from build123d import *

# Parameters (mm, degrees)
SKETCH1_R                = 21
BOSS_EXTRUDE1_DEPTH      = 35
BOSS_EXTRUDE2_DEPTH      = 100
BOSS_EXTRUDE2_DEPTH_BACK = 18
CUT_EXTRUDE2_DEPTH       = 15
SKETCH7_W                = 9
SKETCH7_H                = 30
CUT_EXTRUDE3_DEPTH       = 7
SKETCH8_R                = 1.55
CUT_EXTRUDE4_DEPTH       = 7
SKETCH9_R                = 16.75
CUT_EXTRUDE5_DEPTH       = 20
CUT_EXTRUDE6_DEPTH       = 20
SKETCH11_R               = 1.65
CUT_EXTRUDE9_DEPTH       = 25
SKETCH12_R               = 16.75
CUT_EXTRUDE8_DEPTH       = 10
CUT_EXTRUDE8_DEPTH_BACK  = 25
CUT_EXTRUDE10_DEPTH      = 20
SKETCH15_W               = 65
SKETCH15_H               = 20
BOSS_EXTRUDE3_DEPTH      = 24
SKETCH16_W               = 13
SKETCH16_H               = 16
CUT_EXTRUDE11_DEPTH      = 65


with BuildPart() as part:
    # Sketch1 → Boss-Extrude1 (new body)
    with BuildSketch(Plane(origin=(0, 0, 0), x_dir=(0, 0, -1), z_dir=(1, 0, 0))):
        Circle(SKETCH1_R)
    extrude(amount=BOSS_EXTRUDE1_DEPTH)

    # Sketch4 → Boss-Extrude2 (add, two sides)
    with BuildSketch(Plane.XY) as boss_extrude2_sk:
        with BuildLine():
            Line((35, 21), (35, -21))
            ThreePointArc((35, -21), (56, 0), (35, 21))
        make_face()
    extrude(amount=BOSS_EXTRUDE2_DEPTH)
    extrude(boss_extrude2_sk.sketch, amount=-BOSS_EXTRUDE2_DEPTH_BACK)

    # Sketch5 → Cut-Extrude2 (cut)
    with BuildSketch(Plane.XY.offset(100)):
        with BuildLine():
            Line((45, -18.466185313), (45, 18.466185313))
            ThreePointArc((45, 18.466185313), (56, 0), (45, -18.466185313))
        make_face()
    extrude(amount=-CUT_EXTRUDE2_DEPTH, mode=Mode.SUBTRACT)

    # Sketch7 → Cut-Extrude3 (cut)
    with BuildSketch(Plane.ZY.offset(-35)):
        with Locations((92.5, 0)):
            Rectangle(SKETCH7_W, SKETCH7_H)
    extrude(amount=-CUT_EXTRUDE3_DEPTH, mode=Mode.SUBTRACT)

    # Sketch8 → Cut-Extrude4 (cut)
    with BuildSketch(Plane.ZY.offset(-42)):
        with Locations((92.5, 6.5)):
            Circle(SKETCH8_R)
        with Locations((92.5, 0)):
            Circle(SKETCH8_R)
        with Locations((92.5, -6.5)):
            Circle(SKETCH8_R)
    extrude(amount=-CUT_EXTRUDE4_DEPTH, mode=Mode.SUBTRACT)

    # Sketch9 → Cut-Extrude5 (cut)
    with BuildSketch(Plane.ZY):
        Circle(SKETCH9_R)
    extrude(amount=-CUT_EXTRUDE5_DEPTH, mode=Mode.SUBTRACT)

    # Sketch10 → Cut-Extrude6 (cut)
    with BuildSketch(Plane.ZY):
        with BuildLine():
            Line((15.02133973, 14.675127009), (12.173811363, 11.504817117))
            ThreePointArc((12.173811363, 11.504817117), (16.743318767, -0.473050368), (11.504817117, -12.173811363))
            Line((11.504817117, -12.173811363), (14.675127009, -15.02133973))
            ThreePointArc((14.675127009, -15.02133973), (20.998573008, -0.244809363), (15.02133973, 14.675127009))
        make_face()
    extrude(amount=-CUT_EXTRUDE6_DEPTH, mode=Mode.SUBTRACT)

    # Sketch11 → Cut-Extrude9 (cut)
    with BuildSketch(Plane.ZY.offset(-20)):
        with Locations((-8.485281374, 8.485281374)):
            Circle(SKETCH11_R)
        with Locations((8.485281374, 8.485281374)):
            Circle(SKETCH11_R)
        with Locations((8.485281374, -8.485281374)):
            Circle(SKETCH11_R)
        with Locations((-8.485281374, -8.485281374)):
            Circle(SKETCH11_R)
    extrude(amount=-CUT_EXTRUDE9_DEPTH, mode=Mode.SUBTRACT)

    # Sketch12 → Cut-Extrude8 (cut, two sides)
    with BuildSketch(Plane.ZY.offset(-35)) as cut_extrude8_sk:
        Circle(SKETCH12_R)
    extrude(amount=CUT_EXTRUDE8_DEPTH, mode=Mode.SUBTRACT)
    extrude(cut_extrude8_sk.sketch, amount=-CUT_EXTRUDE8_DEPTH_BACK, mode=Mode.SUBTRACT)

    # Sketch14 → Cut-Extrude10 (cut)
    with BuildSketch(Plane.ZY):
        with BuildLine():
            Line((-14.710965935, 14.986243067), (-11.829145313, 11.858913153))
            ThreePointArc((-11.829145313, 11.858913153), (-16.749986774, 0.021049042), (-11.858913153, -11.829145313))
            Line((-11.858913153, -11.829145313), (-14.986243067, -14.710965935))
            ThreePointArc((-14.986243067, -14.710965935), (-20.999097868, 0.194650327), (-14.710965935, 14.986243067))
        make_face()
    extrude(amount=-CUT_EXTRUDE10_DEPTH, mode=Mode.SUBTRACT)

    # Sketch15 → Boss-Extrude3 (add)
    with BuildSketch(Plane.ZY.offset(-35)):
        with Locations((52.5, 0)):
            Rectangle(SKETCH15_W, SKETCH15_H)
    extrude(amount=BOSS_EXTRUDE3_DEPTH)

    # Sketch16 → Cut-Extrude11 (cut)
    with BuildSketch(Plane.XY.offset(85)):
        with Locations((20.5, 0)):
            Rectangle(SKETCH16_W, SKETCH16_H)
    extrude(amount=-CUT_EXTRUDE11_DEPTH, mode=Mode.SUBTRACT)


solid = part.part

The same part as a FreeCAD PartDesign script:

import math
import FreeCAD as App
import Part
import Sketcher
Q = App.Units.Quantity


def add_polygon(sketch, points):
    """Adds a closed chain of lines whose ends are joined by coincident constraints."""
    first, n = sketch.GeometryCount, len(points)
    for a, b in zip(points, points[1:] + points[:1]):
        sketch.addGeometry(Part.LineSegment(App.Vector(*a, 0), App.Vector(*b, 0)), False)
    for i in range(n):
        sketch.addConstraint(Sketcher.Constraint("Coincident", first + i, 2, first + (i + 1) % n, 1))

doc = App.newDocument("Part")
body = doc.addObject("PartDesign::Body", "Body")

sketch1 = body.newObject("Sketcher::SketchObject", "Sketch")
sketch1.AttachmentSupport = (doc.getObject("YZ_Plane"), [""])
sketch1.MapMode = "FlatFace"
sketch1.addGeometry(Part.Circle(App.Vector(0, 0, 0), App.Vector(0, 0, 1), 21), False)
sketch1.addConstraint([
    Sketcher.Constraint("Coincident", 0, 3, -1, 1),
    Sketcher.Constraint("Diameter", 0, Q("42 mm")),
])
pad1 = body.newObject("PartDesign::Pad", "Pad")
pad1.Profile = sketch1
pad1.Length = 35

sketch2 = body.newObject("Sketcher::SketchObject", "Sketch001")
sketch2.AttachmentSupport = (doc.getObject("XY_Plane"), [""])
sketch2.MapMode = "FlatFace"
sketch2.addGeometry([
    Part.LineSegment(App.Vector(35, 21, 0), App.Vector(35, -21, 0)),
    Part.ArcOfCircle(Part.Circle(App.Vector(35, 0, 0), App.Vector(0, 0, 1), 21), math.radians(-90), math.radians(90)),
], False)
sketch2.addConstraint([
    Sketcher.Constraint("Coincident", 0, 1, 1, 2),
    Sketcher.Constraint("Coincident", 1, 1, 0, 2),
    Sketcher.Constraint("Vertical", 0),
    Sketcher.Constraint("PointOnObject", 1, 3, -1),
    Sketcher.Constraint("Vertical", 1, 3, 0, 1),
    Sketcher.Constraint("Radius", 1, Q("21 mm")),
    Sketcher.Constraint("DistanceX", -1, 1, 1, 3, Q("35 mm")),
])
pad2 = body.newObject("PartDesign::Pad", "Pad001")
pad2.Profile = sketch2
pad2.Type = "TwoLengths"
pad2.Length = 100
pad2.Length2 = 18

sketch3 = body.newObject("Sketcher::SketchObject", "Sketch002")
sketch3.AttachmentSupport = (doc.getObject("XY_Plane"), [""])
sketch3.MapMode = "FlatFace"
sketch3.AttachmentOffset = App.Placement(App.Vector(0, 0, 100), App.Rotation())
sketch3.addGeometry([
    Part.LineSegment(App.Vector(45, 18, 0), App.Vector(45, -18, 0)),
    Part.ArcOfCircle(Part.Circle(App.Vector(35, 0, 0), App.Vector(0, 0, 1), 21), math.radians(-62), math.radians(62)),
], False)
sketch3.addConstraint([
    Sketcher.Constraint("Coincident", 0, 1, 1, 2),
    Sketcher.Constraint("Coincident", 1, 1, 0, 2),
    Sketcher.Constraint("Vertical", 0),
    Sketcher.Constraint("PointOnObject", 1, 3, -1),
    Sketcher.Constraint("Radius", 1, Q("21 mm")),
    Sketcher.Constraint("DistanceX", -1, 1, 1, 3, Q("35 mm")),
    Sketcher.Constraint("DistanceX", -1, 1, 0, 1, Q("45 mm")),
])
pocket1 = body.newObject("PartDesign::Pocket", "Pocket")
pocket1.Profile = sketch3
pocket1.Length = 15

sketch4 = body.newObject("Sketcher::SketchObject", "Sketch003")
sketch4.AttachmentSupport = (doc.getObject("YZ_Plane"), [""])
sketch4.MapMode = "FlatFace"
sketch4.AttachmentOffset = App.Placement(App.Vector(0, 0, 35), App.Rotation())
add_polygon(sketch4, [(15, 88), (-15, 88), (-15, 97), (15, 97)])
sketch4.addConstraint([
    Sketcher.Constraint("Horizontal", 0),
    Sketcher.Constraint("Vertical", 1),
    Sketcher.Constraint("Horizontal", 2),
    Sketcher.Constraint("Vertical", 3),
    Sketcher.Constraint("DistanceX", 0, 2, 0, 1, Q("30 mm")),
    Sketcher.Constraint("DistanceY", 1, 1, 1, 2, Q("9 mm")),
    Sketcher.Constraint("DistanceX", 0, 2, -1, 1, Q("15 mm")),
    Sketcher.Constraint("DistanceY", -1, 1, 0, 2, Q("88 mm")),
])
pocket2 = body.newObject("PartDesign::Pocket", "Pocket001")
pocket2.Profile = sketch4
pocket2.Length = 7
pocket2.Reversed = True

sketch5 = body.newObject("Sketcher::SketchObject", "Sketch004")
sketch5.AttachmentSupport = (doc.getObject("YZ_Plane"), [""])
sketch5.MapMode = "FlatFace"
sketch5.AttachmentOffset = App.Placement(App.Vector(0, 0, 42), App.Rotation())
sketch5.addGeometry([
    Part.Circle(App.Vector(6.5, 92.5, 0), App.Vector(0, 0, 1), 1.6),
    Part.Circle(App.Vector(0, 92.5, 0), App.Vector(0, 0, 1), 1.6),
    Part.Circle(App.Vector(-6.5, 92.5, 0), App.Vector(0, 0, 1), 1.6),
], False)
sketch5.addConstraint([
    Sketcher.Constraint("Equal", 0, 1),
    Sketcher.Constraint("Equal", 1, 2),
    Sketcher.Constraint("Symmetric", 0, 3, 2, 3, -2),
    Sketcher.Constraint("PointOnObject", 1, 3, -2),
    Sketcher.Constraint("Horizontal", 0, 3, 1, 3),
    Sketcher.Constraint("Diameter", 0, Q("3.1 mm")),
    Sketcher.Constraint("DistanceX", 2, 3, 0, 3, Q("13 mm")),
    Sketcher.Constraint("DistanceY", -1, 1, 0, 3, Q("92.5 mm")),
])
pocket3 = body.newObject("PartDesign::Pocket", "Pocket002")
pocket3.Profile = sketch5
pocket3.Length = 7
pocket3.Reversed = True

sketch6 = body.newObject("Sketcher::SketchObject", "Sketch005")
sketch6.AttachmentSupport = (doc.getObject("YZ_Plane"), [""])
sketch6.MapMode = "FlatFace"
sketch6.addGeometry(Part.Circle(App.Vector(0, 0, 0), App.Vector(0, 0, 1), 17), False)
sketch6.addConstraint([
    Sketcher.Constraint("Coincident", 0, 3, -1, 1),
    Sketcher.Constraint("Diameter", 0, Q("33.5 mm")),
])
pocket4 = body.newObject("PartDesign::Pocket", "Pocket003")
pocket4.Profile = sketch6
pocket4.Length = 20
pocket4.Reversed = True

sketch7 = body.newObject("Sketcher::SketchObject", "Sketch006")
sketch7.AttachmentSupport = (doc.getObject("YZ_Plane"), [""])
sketch7.MapMode = "FlatFace"
sketch7.addGeometry([
    Part.LineSegment(App.Vector(14.7, 15, 0), App.Vector(11.5, 12.2, 0)),
    Part.ArcOfCircle(Part.Circle(App.Vector(0, 0, 0), App.Vector(0, 0, 1), 16.8), math.radians(47), math.radians(137)),
    Part.LineSegment(App.Vector(-12.2, 11.5, 0), App.Vector(-15, 14.7, 0)),
    Part.ArcOfCircle(Part.Circle(App.Vector(0, 0, 0), App.Vector(0, 0, 1), 21), math.radians(46), math.radians(136)),
], False)
sketch7.addConstraint([
    Sketcher.Constraint("Coincident", 0, 2, 1, 1),
    Sketcher.Constraint("Coincident", 1, 2, 2, 1),
    Sketcher.Constraint("Coincident", 2, 2, 3, 2),
    Sketcher.Constraint("Coincident", 3, 1, 0, 1),
    Sketcher.Constraint("Coincident", 1, 3, -1, 1),
    Sketcher.Constraint("Coincident", 3, 3, -1, 1),
    Sketcher.Constraint("Perpendicular", 0, 2),
    Sketcher.Constraint("Equal", 0, 2),
    Sketcher.Constraint("Radius", 3, Q("21 mm")),
    Sketcher.Constraint("Radius", 1, Q("16.75 mm")),
    Sketcher.Constraint("Distance", 0, Q("4.261371 mm")),
    Sketcher.Constraint("DistanceY", -1, 1, 0, 2, Q("12.173811 mm")),
])
pocket5 = body.newObject("PartDesign::Pocket", "Pocket004")
pocket5.Profile = sketch7
pocket5.Length = 20
pocket5.Reversed = True

sketch8 = body.newObject("Sketcher::SketchObject", "Sketch007")
sketch8.AttachmentSupport = (doc.getObject("YZ_Plane"), [""])
sketch8.MapMode = "FlatFace"
sketch8.AttachmentOffset = App.Placement(App.Vector(0, 0, 20), App.Rotation())
sketch8.addGeometry([
    Part.Circle(App.Vector(8.5, -8.5, 0), App.Vector(0, 0, 1), 1.6),
    Part.Circle(App.Vector(8.5, 8.5, 0), App.Vector(0, 0, 1), 1.6),
    Part.Circle(App.Vector(-8.5, 8.5, 0), App.Vector(0, 0, 1), 1.6),
    Part.Circle(App.Vector(-8.5, -8.5, 0), App.Vector(0, 0, 1), 1.6),
], False)
sketch8.addConstraint([
    Sketcher.Constraint("Equal", 0, 1),
    Sketcher.Constraint("Equal", 1, 2),
    Sketcher.Constraint("Equal", 2, 3),
    Sketcher.Constraint("Symmetric", 0, 3, 2, 3, -1, 1),
    Sketcher.Constraint("Symmetric", 1, 3, 3, 3, -1, 1),
    Sketcher.Constraint("Symmetric", 1, 3, 2, 3, -2),
    Sketcher.Constraint("Diameter", 0, Q("3.3 mm")),
    Sketcher.Constraint("DistanceX", -1, 1, 0, 3, Q("8.485281 mm")),
    Sketcher.Constraint("DistanceY", 0, 3, -1, 1, Q("8.485281 mm")),
])
pocket6 = body.newObject("PartDesign::Pocket", "Pocket005")
pocket6.Profile = sketch8
pocket6.Length = 25
pocket6.Reversed = True

sketch9 = body.newObject("Sketcher::SketchObject", "Sketch008")
sketch9.AttachmentSupport = (doc.getObject("YZ_Plane"), [""])
sketch9.MapMode = "FlatFace"
sketch9.AttachmentOffset = App.Placement(App.Vector(0, 0, 35), App.Rotation())
sketch9.addGeometry(Part.Circle(App.Vector(0, 0, 0), App.Vector(0, 0, 1), 17), False)
sketch9.addConstraint([
    Sketcher.Constraint("Coincident", 0, 3, -1, 1),
    Sketcher.Constraint("Diameter", 0, Q("33.5 mm")),
])
pocket7 = body.newObject("PartDesign::Pocket", "Pocket006")
pocket7.Profile = sketch9
pocket7.Type = "TwoLengths"
pocket7.Length = 10
pocket7.Length2 = 25

sketch10 = body.newObject("Sketcher::SketchObject", "Sketch009")
sketch10.AttachmentSupport = (doc.getObject("YZ_Plane"), [""])
sketch10.MapMode = "FlatFace"
sketch10.addGeometry([
    Part.LineSegment(App.Vector(11.858913, -11.829145, 0), App.Vector(14.986243, -14.710966, 0)),
    Part.ArcOfCircle(Part.Circle(App.Vector(0, 0, 0), App.Vector(0, 0, 1), 21), math.radians(-134.468914), math.radians(-44.468914)),
    Part.LineSegment(App.Vector(-14.710966, -14.986243, 0), App.Vector(-11.829145, -11.858913, 0)),
    Part.ArcOfCircle(Part.Circle(App.Vector(0, 0, 0), App.Vector(0, 0, 1), 16.75), math.radians(-134.927999), math.radians(-44.927999)),
], False)
sketch10.addConstraint([
    Sketcher.Constraint("Coincident", 0, 2, 1, 2),
    Sketcher.Constraint("Coincident", 1, 1, 2, 1),
    Sketcher.Constraint("Coincident", 2, 2, 3, 1),
    Sketcher.Constraint("Coincident", 3, 2, 0, 1),
    Sketcher.Constraint("Coincident", 1, 3, -1, 1),
    Sketcher.Constraint("Coincident", 3, 3, -1, 1),
    Sketcher.Constraint("Perpendicular", 0, 2),
    Sketcher.Constraint("Equal", 0, 2),
    Sketcher.Constraint("Radius", 1, Q("21 mm")),
    Sketcher.Constraint("Radius", 3, Q("16.75 mm")),
    Sketcher.Constraint("DistanceX", 1, 1, 2, 2, Q("2.881821 mm")),
    Sketcher.Constraint("DistanceX", 2, 2, 0, 2, Q("26.815388 mm")),
])
pocket8 = body.newObject("PartDesign::Pocket", "Pocket007")
pocket8.Profile = sketch10
pocket8.Length = 20
pocket8.Reversed = True

sketch11 = body.newObject("Sketcher::SketchObject", "Sketch010")
sketch11.AttachmentSupport = (doc.getObject("YZ_Plane"), [""])
sketch11.MapMode = "FlatFace"
sketch11.AttachmentOffset = App.Placement(App.Vector(0, 0, 35), App.Rotation())
add_polygon(sketch11, [(10, 20), (-10, 20), (-10, 85), (10, 85)])
sketch11.addConstraint([
    Sketcher.Constraint("Horizontal", 0),
    Sketcher.Constraint("Vertical", 1),
    Sketcher.Constraint("Horizontal", 2),
    Sketcher.Constraint("Vertical", 3),
    Sketcher.Constraint("DistanceX", 0, 2, 0, 1, Q("20 mm")),
    Sketcher.Constraint("DistanceY", 1, 1, 1, 2, Q("65 mm")),
    Sketcher.Constraint("DistanceX", 0, 2, -1, 1, Q("10 mm")),
    Sketcher.Constraint("DistanceY", -1, 1, 0, 2, Q("20 mm")),
])
pad3 = body.newObject("PartDesign::Pad", "Pad002")
pad3.Profile = sketch11
pad3.Length = 24
pad3.Reversed = True

sketch12 = body.newObject("Sketcher::SketchObject", "Sketch011")
sketch12.AttachmentSupport = (doc.getObject("XY_Plane"), [""])
sketch12.MapMode = "FlatFace"
sketch12.AttachmentOffset = App.Placement(App.Vector(0, 0, 85), App.Rotation())
add_polygon(sketch12, [(14, 8), (14, -8), (27, -8), (27, 8)])
sketch12.addConstraint([
    Sketcher.Constraint("Vertical", 0),
    Sketcher.Constraint("Horizontal", 1),
    Sketcher.Constraint("Vertical", 2),
    Sketcher.Constraint("Horizontal", 3),
    Sketcher.Constraint("DistanceX", 1, 1, 1, 2, Q("13 mm")),
    Sketcher.Constraint("DistanceY", 0, 2, 0, 1, Q("16 mm")),
    Sketcher.Constraint("DistanceX", -1, 1, 0, 2, Q("14 mm")),
    Sketcher.Constraint("DistanceY", 0, 2, -1, 1, Q("8 mm")),
])
pocket9 = body.newObject("PartDesign::Pocket", "Pocket008")
pocket9.Profile = sketch12
pocket9.Length = 65

doc.recompute()
